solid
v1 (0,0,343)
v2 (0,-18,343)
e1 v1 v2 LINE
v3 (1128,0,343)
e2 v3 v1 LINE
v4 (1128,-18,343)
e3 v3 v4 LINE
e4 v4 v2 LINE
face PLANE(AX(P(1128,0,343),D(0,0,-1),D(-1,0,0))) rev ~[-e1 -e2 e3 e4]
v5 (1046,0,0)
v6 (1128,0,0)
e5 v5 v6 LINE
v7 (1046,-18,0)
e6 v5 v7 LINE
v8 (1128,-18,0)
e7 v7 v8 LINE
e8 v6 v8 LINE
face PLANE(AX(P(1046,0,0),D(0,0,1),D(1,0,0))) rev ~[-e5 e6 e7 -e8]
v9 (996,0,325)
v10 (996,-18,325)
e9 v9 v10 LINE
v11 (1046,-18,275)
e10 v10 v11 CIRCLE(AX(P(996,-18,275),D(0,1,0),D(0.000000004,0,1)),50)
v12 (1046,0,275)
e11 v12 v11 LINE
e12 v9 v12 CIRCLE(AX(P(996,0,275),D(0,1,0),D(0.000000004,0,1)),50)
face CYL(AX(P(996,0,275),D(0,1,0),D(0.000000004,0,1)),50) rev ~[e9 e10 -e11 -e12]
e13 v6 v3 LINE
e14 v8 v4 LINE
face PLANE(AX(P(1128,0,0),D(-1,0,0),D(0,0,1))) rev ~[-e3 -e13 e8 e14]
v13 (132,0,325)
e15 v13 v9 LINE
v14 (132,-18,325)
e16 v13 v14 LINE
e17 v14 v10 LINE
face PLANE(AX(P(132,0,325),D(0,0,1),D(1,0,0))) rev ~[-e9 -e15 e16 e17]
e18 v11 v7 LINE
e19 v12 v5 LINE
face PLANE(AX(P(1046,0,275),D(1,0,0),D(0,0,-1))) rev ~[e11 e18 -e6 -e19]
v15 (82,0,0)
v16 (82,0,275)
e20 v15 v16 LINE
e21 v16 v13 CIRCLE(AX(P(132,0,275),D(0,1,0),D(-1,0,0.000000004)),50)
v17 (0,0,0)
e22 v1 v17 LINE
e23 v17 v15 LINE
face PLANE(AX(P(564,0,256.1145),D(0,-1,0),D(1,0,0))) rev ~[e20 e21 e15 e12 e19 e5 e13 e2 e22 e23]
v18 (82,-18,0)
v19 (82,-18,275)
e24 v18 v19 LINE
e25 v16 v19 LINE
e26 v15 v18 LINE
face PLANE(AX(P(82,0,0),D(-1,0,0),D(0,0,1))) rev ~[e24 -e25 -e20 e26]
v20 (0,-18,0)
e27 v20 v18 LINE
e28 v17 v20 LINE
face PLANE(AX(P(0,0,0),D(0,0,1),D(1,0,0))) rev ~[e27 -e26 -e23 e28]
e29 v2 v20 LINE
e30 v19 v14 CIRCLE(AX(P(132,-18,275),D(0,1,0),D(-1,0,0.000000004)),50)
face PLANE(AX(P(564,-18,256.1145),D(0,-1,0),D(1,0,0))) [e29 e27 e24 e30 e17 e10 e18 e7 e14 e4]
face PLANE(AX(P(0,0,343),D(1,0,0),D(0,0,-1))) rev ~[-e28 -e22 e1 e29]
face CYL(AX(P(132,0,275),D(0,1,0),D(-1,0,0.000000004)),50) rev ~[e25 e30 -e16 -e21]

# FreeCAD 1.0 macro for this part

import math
import FreeCAD as App
import Part
import Sketcher

V = App.Vector
Q = App.Units.Quantity

doc = App.newDocument("Part")
body = doc.addObject("PartDesign::Body", "Body")

# Sketch on XZ plane
sketch1 = body.newObject("Sketcher::SketchObject", "Sketch")
sketch1.AttachmentSupport = (doc.getObject("XZ_Plane"), [""])
sketch1.MapMode = "FlatFace"
sketch1.addGeometry(Part.LineSegment(V(0, 343, 0), V(0, 0, 0)), False)
sketch1.addGeometry(Part.LineSegment(V(0, 0, 0), V(82, 0, 0)), False)
sketch1.addGeometry(Part.LineSegment(V(82, 0, 0), V(82, 275, 0)), False)
sketch1.addGeometry(Part.ArcOfCircle(Part.Circle(V(132, 275, 0), V(0, 0, 1), 50), math.radians(90), math.radians(180)), False)
sketch1.addGeometry(Part.LineSegment(V(132, 325, 0), V(996, 325, 0)), False)
sketch1.addGeometry(Part.ArcOfCircle(Part.Circle(V(996, 275, 0), V(0, 0, 1), 50), math.radians(0), math.radians(90)), False)
sketch1.addGeometry(Part.LineSegment(V(1046, 275, 0), V(1046, 0, 0)), False)
sketch1.addGeometry(Part.LineSegment(V(1046, 0, 0), V(1128, 0, 0)), False)
sketch1.addGeometry(Part.LineSegment(V(1128, 0, 0), V(1128, 343, 0)), False)
sketch1.addGeometry(Part.LineSegment(V(1128, 343, 0), V(0, 343, 0)), False)
sketch1.addConstraint(Sketcher.Constraint("Coincident", 0, 2, 1, 1))
sketch1.addConstraint(Sketcher.Constraint("Coincident", 1, 2, 2, 1))
sketch1.addConstraint(Sketcher.Constraint("Tangent", 2, 2, 3, 2))
sketch1.addConstraint(Sketcher.Constraint("Tangent", 3, 1, 4, 1))
sketch1.addConstraint(Sketcher.Constraint("Tangent", 4, 2, 5, 2))
sketch1.addConstraint(Sketcher.Constraint("Tangent", 5, 1, 6, 1))
sketch1.addConstraint(Sketcher.Constraint("Coincident", 6, 2, 7, 1))
sketch1.addConstraint(Sketcher.Constraint("Coincident", 7, 2, 8, 1))
sketch1.addConstraint(Sketcher.Constraint("Coincident", 8, 2, 9, 1))
sketch1.addConstraint(Sketcher.Constraint("Coincident", 9, 2, 0, 1))
sketch1.addConstraint(Sketcher.Constraint("Vertical", 0))
sketch1.addConstraint(Sketcher.Constraint("Horizontal", 1))
sketch1.addConstraint(Sketcher.Constraint("Vertical", 2))
sketch1.addConstraint(Sketcher.Constraint("Horizontal", 4))
sketch1.addConstraint(Sketcher.Constraint("Vertical", 6))
sketch1.addConstraint(Sketcher.Constraint("Horizontal", 7))
sketch1.addConstraint(Sketcher.Constraint("Vertical", 8))
sketch1.addConstraint(Sketcher.Constraint("Horizontal", 9))
sketch1.addConstraint(Sketcher.Constraint("Coincident", 0, 2, -1, 1))
sketch1.addConstraint(Sketcher.Constraint("Equal", 3, 5))
sketch1.addConstraint(Sketcher.Constraint("PointOnObject", 6, 2, -1))
sketch1.addConstraint(Sketcher.Constraint("Equal", 1, 7))
sketch1.addConstraint(Sketcher.Constraint("Radius", 3, Q("50 mm")))
sketch1.addConstraint(Sketcher.Constraint("DistanceX", 1, 1, 1, 2, Q("82 mm")))
sketch1.addConstraint(Sketcher.Constraint("DistanceX", 4, 1, 4, 2, Q("864 mm")))
sketch1.addConstraint(Sketcher.Constraint("DistanceY", 0, 2, 0, 1, Q("343 mm")))
sketch1.addConstraint(Sketcher.Constraint("DistanceY", 2, 1, 2, 2, Q("275 mm")))
pad1 = body.newObject("PartDesign::Pad", "Pad")
pad1.Profile = sketch1
pad1.Length = 18

doc.recompute()
